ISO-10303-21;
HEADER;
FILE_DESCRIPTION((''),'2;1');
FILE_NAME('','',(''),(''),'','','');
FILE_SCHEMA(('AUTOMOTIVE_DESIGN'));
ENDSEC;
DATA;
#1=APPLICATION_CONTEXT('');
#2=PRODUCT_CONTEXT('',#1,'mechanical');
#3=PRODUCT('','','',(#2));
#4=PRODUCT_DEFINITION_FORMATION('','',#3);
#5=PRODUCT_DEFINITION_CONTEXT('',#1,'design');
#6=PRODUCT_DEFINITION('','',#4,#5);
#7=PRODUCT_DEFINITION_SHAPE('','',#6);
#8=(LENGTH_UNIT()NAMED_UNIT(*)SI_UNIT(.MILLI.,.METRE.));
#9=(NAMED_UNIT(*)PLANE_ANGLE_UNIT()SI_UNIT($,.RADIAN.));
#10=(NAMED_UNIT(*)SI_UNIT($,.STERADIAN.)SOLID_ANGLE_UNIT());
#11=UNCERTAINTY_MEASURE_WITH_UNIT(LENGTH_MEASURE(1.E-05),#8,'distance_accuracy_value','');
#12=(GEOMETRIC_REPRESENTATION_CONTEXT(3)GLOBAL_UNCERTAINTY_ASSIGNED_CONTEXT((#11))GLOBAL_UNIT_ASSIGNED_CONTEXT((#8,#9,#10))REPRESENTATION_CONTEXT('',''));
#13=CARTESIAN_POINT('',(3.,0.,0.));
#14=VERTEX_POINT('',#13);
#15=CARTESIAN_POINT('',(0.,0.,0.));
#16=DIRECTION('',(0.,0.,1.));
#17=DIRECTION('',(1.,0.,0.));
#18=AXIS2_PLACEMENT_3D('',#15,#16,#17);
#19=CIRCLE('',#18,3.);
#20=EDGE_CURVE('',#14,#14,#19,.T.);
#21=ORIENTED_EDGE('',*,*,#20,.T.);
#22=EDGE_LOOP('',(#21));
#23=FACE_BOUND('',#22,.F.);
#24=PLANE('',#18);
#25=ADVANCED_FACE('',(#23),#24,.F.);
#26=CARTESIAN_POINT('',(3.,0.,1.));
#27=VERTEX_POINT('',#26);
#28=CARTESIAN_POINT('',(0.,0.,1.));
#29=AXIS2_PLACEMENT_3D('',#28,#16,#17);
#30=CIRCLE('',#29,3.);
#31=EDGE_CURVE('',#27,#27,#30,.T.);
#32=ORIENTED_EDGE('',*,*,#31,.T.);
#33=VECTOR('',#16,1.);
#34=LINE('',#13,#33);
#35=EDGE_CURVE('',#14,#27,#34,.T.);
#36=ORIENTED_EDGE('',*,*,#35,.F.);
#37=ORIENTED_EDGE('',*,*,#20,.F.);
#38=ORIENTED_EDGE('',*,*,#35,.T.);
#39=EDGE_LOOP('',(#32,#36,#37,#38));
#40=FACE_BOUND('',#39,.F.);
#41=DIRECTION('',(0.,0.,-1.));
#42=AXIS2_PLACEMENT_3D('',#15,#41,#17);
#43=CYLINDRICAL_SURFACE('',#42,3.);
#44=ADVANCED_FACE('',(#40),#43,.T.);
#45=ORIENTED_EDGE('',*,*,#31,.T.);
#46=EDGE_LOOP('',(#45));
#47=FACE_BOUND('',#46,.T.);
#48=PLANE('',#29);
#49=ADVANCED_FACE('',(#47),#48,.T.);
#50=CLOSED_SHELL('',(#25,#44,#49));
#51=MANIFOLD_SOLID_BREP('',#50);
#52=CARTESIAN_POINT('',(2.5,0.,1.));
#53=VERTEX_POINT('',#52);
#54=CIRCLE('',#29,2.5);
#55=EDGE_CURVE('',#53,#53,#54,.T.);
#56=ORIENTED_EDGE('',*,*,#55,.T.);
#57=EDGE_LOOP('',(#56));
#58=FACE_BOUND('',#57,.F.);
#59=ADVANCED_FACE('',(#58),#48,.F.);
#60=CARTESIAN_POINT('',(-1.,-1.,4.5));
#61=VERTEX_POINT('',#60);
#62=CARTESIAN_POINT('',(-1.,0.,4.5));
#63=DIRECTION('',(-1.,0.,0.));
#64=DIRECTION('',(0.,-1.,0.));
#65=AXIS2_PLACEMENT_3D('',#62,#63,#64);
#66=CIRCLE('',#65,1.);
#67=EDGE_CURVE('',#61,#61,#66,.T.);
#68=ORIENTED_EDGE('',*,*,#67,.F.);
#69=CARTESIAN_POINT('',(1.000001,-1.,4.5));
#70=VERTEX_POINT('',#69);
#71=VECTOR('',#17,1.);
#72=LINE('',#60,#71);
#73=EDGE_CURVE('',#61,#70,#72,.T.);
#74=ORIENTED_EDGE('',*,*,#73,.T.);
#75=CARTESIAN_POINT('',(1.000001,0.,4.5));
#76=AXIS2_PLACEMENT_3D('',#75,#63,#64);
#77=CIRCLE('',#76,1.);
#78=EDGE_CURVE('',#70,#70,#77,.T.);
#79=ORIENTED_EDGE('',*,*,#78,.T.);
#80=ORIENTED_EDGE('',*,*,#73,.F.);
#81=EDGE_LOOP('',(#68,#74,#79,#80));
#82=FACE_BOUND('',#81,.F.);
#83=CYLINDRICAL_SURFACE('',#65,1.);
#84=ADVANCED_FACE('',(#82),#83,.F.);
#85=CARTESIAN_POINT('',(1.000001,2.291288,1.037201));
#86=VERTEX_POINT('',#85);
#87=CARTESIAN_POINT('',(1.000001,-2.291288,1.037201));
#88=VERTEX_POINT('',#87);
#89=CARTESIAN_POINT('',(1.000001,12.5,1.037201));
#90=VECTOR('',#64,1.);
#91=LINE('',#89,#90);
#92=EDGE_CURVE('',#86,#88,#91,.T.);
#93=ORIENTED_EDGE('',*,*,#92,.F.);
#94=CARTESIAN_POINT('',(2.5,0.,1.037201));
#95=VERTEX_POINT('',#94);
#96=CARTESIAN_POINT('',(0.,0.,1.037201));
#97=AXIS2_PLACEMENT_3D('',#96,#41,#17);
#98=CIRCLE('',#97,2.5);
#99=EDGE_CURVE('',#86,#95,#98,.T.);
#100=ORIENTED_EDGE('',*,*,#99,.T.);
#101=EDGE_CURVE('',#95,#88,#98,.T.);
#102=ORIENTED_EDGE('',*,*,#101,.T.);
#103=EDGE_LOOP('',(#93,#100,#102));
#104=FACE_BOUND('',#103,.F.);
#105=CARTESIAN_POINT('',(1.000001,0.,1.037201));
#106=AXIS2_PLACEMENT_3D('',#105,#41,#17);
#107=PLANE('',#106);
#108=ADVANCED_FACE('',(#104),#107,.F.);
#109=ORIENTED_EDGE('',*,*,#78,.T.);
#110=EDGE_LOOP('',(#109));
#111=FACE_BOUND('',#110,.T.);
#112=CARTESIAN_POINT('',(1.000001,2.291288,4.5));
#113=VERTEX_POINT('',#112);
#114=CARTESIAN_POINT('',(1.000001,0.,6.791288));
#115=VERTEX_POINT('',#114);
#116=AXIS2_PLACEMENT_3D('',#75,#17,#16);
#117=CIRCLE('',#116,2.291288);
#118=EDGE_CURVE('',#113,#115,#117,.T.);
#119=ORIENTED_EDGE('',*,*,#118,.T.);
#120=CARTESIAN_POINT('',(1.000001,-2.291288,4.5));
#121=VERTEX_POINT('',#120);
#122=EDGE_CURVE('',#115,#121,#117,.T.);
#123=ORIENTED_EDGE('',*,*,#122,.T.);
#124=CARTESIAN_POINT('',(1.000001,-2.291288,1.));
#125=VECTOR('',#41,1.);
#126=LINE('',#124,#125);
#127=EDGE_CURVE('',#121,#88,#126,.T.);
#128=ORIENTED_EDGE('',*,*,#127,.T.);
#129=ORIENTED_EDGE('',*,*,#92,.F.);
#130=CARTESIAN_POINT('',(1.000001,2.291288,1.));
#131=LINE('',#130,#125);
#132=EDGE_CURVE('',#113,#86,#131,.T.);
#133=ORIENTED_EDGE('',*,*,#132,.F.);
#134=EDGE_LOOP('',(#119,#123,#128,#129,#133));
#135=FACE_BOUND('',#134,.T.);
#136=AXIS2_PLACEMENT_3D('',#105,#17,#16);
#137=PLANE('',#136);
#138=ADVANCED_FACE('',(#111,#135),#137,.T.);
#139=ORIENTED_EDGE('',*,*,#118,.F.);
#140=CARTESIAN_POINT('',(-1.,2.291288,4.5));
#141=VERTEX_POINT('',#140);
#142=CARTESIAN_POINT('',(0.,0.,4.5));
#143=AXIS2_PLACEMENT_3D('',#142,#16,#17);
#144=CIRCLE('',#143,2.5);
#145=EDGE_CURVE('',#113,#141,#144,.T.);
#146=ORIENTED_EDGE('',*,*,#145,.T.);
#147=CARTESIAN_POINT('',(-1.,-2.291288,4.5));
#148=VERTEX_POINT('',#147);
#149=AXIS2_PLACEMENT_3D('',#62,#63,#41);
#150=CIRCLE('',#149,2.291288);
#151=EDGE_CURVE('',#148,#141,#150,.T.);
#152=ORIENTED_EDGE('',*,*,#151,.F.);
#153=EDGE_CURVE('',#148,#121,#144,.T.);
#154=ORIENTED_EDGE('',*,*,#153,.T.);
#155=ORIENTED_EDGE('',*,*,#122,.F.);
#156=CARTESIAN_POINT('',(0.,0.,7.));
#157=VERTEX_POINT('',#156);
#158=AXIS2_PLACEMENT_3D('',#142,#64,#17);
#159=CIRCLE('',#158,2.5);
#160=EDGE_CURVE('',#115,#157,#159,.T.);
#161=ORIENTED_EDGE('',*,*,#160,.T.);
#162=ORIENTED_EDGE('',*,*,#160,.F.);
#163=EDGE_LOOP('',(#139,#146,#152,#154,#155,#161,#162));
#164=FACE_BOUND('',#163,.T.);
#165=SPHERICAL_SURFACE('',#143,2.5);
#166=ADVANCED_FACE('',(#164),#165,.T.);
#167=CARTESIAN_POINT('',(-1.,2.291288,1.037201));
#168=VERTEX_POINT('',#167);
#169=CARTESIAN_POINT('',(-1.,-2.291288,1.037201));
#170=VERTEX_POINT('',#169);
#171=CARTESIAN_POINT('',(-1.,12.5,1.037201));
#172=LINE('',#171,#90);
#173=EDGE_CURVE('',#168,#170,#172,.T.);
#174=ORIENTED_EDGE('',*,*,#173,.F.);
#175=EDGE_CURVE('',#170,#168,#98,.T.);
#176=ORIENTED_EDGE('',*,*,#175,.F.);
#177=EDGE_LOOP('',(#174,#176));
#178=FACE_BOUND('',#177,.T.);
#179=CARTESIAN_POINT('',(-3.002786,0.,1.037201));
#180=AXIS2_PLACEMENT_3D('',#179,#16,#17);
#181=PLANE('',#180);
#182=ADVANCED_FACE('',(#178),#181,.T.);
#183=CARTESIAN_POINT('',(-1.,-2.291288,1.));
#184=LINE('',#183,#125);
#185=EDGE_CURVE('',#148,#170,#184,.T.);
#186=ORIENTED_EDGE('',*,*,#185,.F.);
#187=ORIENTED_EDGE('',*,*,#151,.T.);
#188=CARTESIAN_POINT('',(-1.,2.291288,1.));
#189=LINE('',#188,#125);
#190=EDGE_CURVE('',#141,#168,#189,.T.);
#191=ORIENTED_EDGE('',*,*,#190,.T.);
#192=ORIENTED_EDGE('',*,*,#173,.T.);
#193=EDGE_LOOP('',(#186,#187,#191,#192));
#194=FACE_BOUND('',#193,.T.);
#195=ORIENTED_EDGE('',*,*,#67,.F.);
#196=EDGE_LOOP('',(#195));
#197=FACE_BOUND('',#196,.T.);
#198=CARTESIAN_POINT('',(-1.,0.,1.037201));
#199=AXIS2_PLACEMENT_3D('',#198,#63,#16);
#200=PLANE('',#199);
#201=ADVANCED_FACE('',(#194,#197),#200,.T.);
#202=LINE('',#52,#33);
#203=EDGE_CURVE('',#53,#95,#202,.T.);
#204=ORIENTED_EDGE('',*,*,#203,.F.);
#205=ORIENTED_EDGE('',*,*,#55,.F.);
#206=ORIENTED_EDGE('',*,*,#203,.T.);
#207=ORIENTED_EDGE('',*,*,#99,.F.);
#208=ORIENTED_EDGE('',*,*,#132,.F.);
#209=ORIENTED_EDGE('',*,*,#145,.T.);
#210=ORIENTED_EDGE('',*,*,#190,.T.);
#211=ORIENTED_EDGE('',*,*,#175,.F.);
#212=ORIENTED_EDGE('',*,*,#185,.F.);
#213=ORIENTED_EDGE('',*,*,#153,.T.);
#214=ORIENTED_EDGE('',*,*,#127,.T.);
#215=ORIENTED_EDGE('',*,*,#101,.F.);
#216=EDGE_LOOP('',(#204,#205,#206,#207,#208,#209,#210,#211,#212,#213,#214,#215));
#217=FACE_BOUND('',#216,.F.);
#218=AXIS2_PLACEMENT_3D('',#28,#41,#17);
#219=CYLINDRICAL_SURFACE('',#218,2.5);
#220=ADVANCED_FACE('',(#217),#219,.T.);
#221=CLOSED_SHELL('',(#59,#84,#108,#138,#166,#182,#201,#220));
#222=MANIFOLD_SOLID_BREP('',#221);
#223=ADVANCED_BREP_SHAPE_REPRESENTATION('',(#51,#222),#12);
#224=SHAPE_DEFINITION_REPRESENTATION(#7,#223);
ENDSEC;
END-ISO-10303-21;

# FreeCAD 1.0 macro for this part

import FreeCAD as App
import Part
import Sketcher
from FreeCAD import Vector


def edges_at(feature, points):
    """Names of the edges that pass closest to the given points."""
    edges = feature.Shape.Edges
    near = lambda p: min(range(len(edges)), key=lambda i: edges[i].distToShape(Part.Vertex(*p))[0])
    return sorted({f"Edge{near(p) + 1}" for p in points})

doc = App.newDocument("Part")
body = doc.addObject("PartDesign::Body", "Body")

# Sketch on XY plane
sketch1 = body.newObject("Sketcher::SketchObject", "Sketch")
sketch1.AttachmentSupport = (doc.getObject("XY_Plane"), [""])
sketch1.MapMode = "FlatFace"
sketch1.addGeometry(Part.Circle(Vector(0, 0, 0), Vector(0, 0, 1), 3), False)
sketch1.addConstraint([
    Sketcher.Constraint("Coincident", 0, 3, -1, 1),
    Sketcher.Constraint("Diameter", 0, 6.0),
])
pad1 = body.newObject("PartDesign::Pad", "Pad")
pad1.Profile = sketch1
pad1.Length = 1
body2 = doc.addObject("PartDesign::Body", "Body001")

# Sketch on XY plane
sketch2 = body2.newObject("Sketcher::SketchObject", "Sketch001")
sketch2.AttachmentSupport = (doc.getObject("XY_Plane001"), [""])
sketch2.MapMode = "FlatFace"
sketch2.AttachmentOffset = App.Placement(Vector(0, 0, 1), App.Rotation())
sketch2.addGeometry(Part.Circle(Vector(0, 0, 0), Vector(0, 0, 1), 2.5), False)
sketch2.addConstraint([
    Sketcher.Constraint("Coincident", 0, 3, -1, 1),
    Sketcher.Constraint("Diameter", 0, 5.0),
])
pad2 = body2.newObject("PartDesign::Pad", "Pad001")
pad2.Profile = sketch2
pad2.Length = 6
doc.recompute()

fillet = body2.newObject("PartDesign::Fillet", "Fillet")
fillet.Base = (pad2, edges_at(pad2, [(-2.5, 0, 7)]))
fillet.Radius = 2.5

# Sketch on XZ plane
sketch3 = body2.newObject("Sketcher::SketchObject", "Sketch002")
sketch3.AttachmentSupport = (doc.getObject("XZ_Plane001"), [""])
sketch3.MapMode = "FlatFace"
sketch3.addGeometry([
    Part.LineSegment(Vector(-3, 10.6, 0), Vector(-3, 1, 0)),  # 0
    Part.LineSegment(Vector(-3, 1, 0), Vector(-1, 1, 0)),  # 1
    Part.LineSegment(Vector(-1, 1, 0), Vector(-1, 10.6, 0)),  # 2
    Part.LineSegment(Vector(-1, 10.6, 0), Vector(-3, 10.6, 0)),  # 3
    Part.LineSegment(Vector(1, 10.6, 0), Vector(1, 1, 0)),  # 4
    Part.LineSegment(Vector(1, 1, 0), Vector(2.8, 1, 0)),  # 5
    Part.LineSegment(Vector(2.8, 1, 0), Vector(2.8, 10.6, 0)),  # 6
    Part.LineSegment(Vector(2.8, 10.6, 0), Vector(1, 10.6, 0)),  # 7
], False)
sketch3.addConstraint([
    Sketcher.Constraint("Coincident", 0, 2, 1, 1),
    Sketcher.Constraint("Coincident", 1, 2, 2, 1),
    Sketcher.Constraint("Coincident", 2, 2, 3, 1),
    Sketcher.Constraint("Coincident", 3, 2, 0, 1),
    Sketcher.Constraint("Coincident", 4, 2, 5, 1),
    Sketcher.Constraint("Coincident", 5, 2, 6, 1),
    Sketcher.Constraint("Coincident", 6, 2, 7, 1),
    Sketcher.Constraint("Coincident", 7, 2, 4, 1),
    Sketcher.Constraint("Vertical", 0),
    Sketcher.Constraint("Horizontal", 1),
    Sketcher.Constraint("Vertical", 2),
    Sketcher.Constraint("Horizontal", 3),
    Sketcher.Constraint("Vertical", 4),
    Sketcher.Constraint("Horizontal", 5),
    Sketcher.Constraint("Vertical", 6),
    Sketcher.Constraint("Horizontal", 7),
    Sketcher.Constraint("Symmetric", 1, 2, 4, 2, -2),
    Sketcher.Constraint("Horizontal", 3, 2, 6, 2),
    Sketcher.Constraint("DistanceX", 1, 2, -1, 1, 1.0),
    Sketcher.Constraint("DistanceX", 5, 1, 5, 2, 1.770969),
    Sketcher.Constraint("DistanceY", -1, 1, 0, 2, 1.037201),
    Sketcher.Constraint("DistanceX", 1, 1, 1, 2, 2.002786),
    Sketcher.Constraint("DistanceY", 0, 2, 0, 1, 9.596602),
])
pocket1 = body2.newObject("PartDesign::Pocket", "Pocket")
pocket1.Profile = sketch3
pocket1.Length = 25
pocket1.Midplane = True

# Sketch on YZ plane
sketch4 = body2.newObject("Sketcher::SketchObject", "Sketch003")
sketch4.AttachmentSupport = (doc.getObject("YZ_Plane001"), [""])
sketch4.MapMode = "FlatFace"
sketch4.AttachmentOffset = App.Placement(Vector(0, 0, -1), App.Rotation())
sketch4.addGeometry(Part.Circle(Vector(0, 4.5, 0), Vector(0, 0, 1), 1), False)
sketch4.addConstraint([
    Sketcher.Constraint("PointOnObject", 0, 3, -2),
    Sketcher.Constraint("Diameter", 0, 2.0),
    Sketcher.Constraint("DistanceY", -1, 1, 0, 3, 4.5),
])
pocket2 = body2.newObject("PartDesign::Pocket", "Pocket001")
pocket2.Profile = sketch4
pocket2.Type = "ThroughAll"
pocket2.Reversed = True

doc.recompute()
